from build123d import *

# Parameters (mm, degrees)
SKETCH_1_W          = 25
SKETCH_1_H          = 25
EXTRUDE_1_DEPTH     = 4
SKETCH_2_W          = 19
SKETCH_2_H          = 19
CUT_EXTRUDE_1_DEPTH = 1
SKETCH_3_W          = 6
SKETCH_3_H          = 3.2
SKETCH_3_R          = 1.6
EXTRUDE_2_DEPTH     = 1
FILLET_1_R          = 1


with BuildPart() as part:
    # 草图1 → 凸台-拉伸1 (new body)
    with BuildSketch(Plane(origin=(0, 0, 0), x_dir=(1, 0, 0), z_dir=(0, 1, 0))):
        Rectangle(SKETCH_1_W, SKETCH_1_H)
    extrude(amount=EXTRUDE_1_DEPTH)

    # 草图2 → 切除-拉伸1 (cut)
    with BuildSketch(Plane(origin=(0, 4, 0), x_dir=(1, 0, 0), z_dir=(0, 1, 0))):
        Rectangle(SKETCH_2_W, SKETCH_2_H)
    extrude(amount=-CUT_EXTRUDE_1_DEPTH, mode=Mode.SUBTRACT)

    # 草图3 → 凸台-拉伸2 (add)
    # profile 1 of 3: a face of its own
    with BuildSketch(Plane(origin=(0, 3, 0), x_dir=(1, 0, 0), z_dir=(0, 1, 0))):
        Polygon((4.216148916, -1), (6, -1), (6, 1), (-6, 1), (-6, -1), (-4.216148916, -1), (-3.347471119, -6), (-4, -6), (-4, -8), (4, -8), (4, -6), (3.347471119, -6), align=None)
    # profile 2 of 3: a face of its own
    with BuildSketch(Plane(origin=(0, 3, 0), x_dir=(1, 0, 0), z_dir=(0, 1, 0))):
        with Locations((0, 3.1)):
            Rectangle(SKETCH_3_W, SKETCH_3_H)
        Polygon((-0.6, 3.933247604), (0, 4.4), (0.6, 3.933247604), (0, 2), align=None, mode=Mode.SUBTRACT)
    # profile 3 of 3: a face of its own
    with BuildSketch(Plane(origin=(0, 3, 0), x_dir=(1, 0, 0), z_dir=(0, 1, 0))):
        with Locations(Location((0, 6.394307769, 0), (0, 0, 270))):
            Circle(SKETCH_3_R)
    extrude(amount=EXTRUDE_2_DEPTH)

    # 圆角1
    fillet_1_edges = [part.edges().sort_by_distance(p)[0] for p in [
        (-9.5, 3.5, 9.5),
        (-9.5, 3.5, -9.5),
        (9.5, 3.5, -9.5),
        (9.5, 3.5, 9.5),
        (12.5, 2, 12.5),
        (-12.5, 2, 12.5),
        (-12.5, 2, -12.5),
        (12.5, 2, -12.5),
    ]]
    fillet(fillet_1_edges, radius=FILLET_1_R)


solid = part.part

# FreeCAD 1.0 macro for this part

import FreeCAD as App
import Part
import Sketcher

V = App.Vector
Q = App.Units.Quantity


def edges_at(feature, points):
    """Names of the edges that pass closest to the given points."""
    edges = feature.Shape.Edges
    near = lambda p: min(range(len(edges)), key=lambda i: edges[i].distToShape(Part.Vertex(*p))[0])
    return sorted({f"Edge{near(p) + 1}" for p in points})


def add_polygon(sketch, points):
    """Adds a closed chain of lines whose ends are joined by coincident constraints."""
    first, n = sketch.GeometryCount, len(points)
    for a, b in zip(points, points[1:] + points[:1]):
        sketch.addGeometry(Part.LineSegment(App.Vector(*a, 0), App.Vector(*b, 0)), False)
    for i in range(n):
        sketch.addConstraint(Sketcher.Constraint("Coincident", first + i, 2, first + (i + 1) % n, 1))

doc = App.newDocument("Part")
body = doc.addObject("PartDesign::Body", "Body")

sketch1 = body.newObject("Sketcher::SketchObject", "Sketch")
sketch1.AttachmentSupport = (doc.getObject("XZ_Plane"), [""])
sketch1.MapMode = "FlatFace"
add_polygon(sketch1, [(-12, -12), (-12, 12), (12, 12), (12, -12)])
sketch1.addConstraint(Sketcher.Constraint("Vertical", 0))
sketch1.addConstraint(Sketcher.Constraint("Horizontal", 1))
sketch1.addConstraint(Sketcher.Constraint("Vertical", 2))
sketch1.addConstraint(Sketcher.Constraint("Horizontal", 3))
sketch1.addConstraint(Sketcher.Constraint("Symmetric", 0, 2, 2, 2, -1, 1))
sketch1.addConstraint(Sketcher.Constraint("Equal", 3, 0))
sketch1.addConstraint(Sketcher.Constraint("DistanceX", 1, 1, 1, 2, Q("25 mm")))
pad1 = body.newObject("PartDesign::Pad", "Pad")
pad1.Profile = sketch1
pad1.Length = 4
pad1.Reversed = True

sketch2 = body.newObject("Sketcher::SketchObject", "Sketch001")
sketch2.AttachmentSupport = (doc.getObject("XZ_Plane"), [""])
sketch2.MapMode = "FlatFace"
sketch2.AttachmentOffset = App.Placement(V(0, 0, -4), App.Rotation())
add_polygon(sketch2, [(-10, -10), (-10, 10), (10, 10), (10, -10)])
sketch2.addConstraint(Sketcher.Constraint("Vertical", 0))
sketch2.addConstraint(Sketcher.Constraint("Horizontal", 1))
sketch2.addConstraint(Sketcher.Constraint("Vertical", 2))
sketch2.addConstraint(Sketcher.Constraint("Horizontal", 3))
sketch2.addConstraint(Sketcher.Constraint("Symmetric", 0, 2, 2, 2, -1, 1))
sketch2.addConstraint(Sketcher.Constraint("Equal", 3, 0))
sketch2.addConstraint(Sketcher.Constraint("DistanceX", 1, 1, 1, 2, Q("19 mm")))
pocket1 = body.newObject("PartDesign::Pocket", "Pocket")
pocket1.Profile = sketch2
pocket1.Length = 1
pocket1.Reversed = True

sketch3 = body.newObject("Sketcher::SketchObject", "Sketch002")
sketch3.AttachmentSupport = (doc.getObject("XZ_Plane"), [""])
sketch3.MapMode = "FlatFace"
sketch3.AttachmentOffset = App.Placement(V(0, 0, -3), App.Rotation())
add_polygon(sketch3, [(4.2, 1), (6, 1), (6, -1), (-6, -1), (-6, 1), (-4.2, 1), (-3.3, 6), (-4, 6), (-4, 8), (4, 8), (4, 6), (3.3, 6)])
add_polygon(sketch3, [(-3, -4.7), (-3, -1.5), (3, -1.5), (3, -4.7)])
add_polygon(sketch3, [(0, -2), (-0.6, -3.9), (0, -4.4), (0.6, -3.9)])
sketch3.addGeometry(Part.Circle(V(0, -6.4, 0), V(0, 0, 1), 1.6), False)
sketch3.addConstraint(Sketcher.Constraint("Horizontal", 0))
sketch3.addConstraint(Sketcher.Constraint("Vertical", 1))
sketch3.addConstraint(Sketcher.Constraint("Horizontal", 2))
sketch3.addConstraint(Sketcher.Constraint("Vertical", 3))
sketch3.addConstraint(Sketcher.Constraint("Horizontal", 4))
sketch3.addConstraint(Sketcher.Constraint("Horizontal", 6))
sketch3.addConstraint(Sketcher.Constraint("Vertical", 7))
sketch3.addConstraint(Sketcher.Constraint("Horizontal", 8))
sketch3.addConstraint(Sketcher.Constraint("Vertical", 9))
sketch3.addConstraint(Sketcher.Constraint("Horizontal", 10))
sketch3.addConstraint(Sketcher.Constraint("Vertical", 12))
sketch3.addConstraint(Sketcher.Constraint("Horizontal", 13))
sketch3.addConstraint(Sketcher.Constraint("Vertical", 14))
sketch3.addConstraint(Sketcher.Constraint("Horizontal", 15))
sketch3.addConstraint(Sketcher.Constraint("Symmetric", 0, 2, 2, 2, -1, 1))
sketch3.addConstraint(Sketcher.Constraint("Symmetric", 6, 2, 9, 2, -2))
sketch3.addConstraint(Sketcher.Constraint("Symmetric", 4, 2, 11, 2, -2))
sketch3.addConstraint(Sketcher.Constraint("Symmetric", 16, 2, 18, 2, -2))
sketch3.addConstraint(Sketcher.Constraint("PointOnObject", 20, 3, -2))
sketch3.addConstraint(Sketcher.Constraint("PointOnObject", 17, 2, -2))
sketch3.addConstraint(Sketcher.Constraint("PointOnObject", 19, 2, -2))
sketch3.addConstraint(Sketcher.Constraint("Equal", 6, 10))
sketch3.addConstraint(Sketcher.Constraint("Equal", 3, 7))
sketch3.addConstraint(Sketcher.Constraint("Diameter", 20, Q("3.2 mm")))
sketch3.addConstraint(Sketcher.Constraint("DistanceX", 2, 2, 2, 1, Q("12 mm")))
sketch3.addConstraint(Sketcher.Constraint("DistanceX", 8, 1, 8, 2, Q("8 mm")))
sketch3.addConstraint(Sketcher.Constraint("DistanceX", 13, 1, 13, 2, Q("6 mm")))
sketch3.addConstraint(Sketcher.Constraint("DistanceY", 1, 2, 1, 1, Q("2 mm")))
sketch3.addConstraint(Sketcher.Constraint("DistanceY", 12, 1, 12, 2, Q("3.2 mm")))
sketch3.addConstraint(Sketcher.Constraint("DistanceY", -1, 1, 5, 2, Q("6 mm")))
sketch3.addConstraint(Sketcher.Constraint("DistanceX", 12, 2, -1, 1, Q("3 mm")))
sketch3.addConstraint(Sketcher.Constraint("DistanceY", 19, 2, -1, 1, Q("2 mm")))
sketch3.addConstraint(Sketcher.Constraint("DistanceY", 12, 2, -1, 1, Q("1.5 mm")))
sketch3.addConstraint(Sketcher.Constraint("DistanceX", 16, 2, -1, 1, Q("0.6 mm")))
sketch3.addConstraint(Sketcher.Constraint("DistanceY", 17, 2, -1, 1, Q("4.4 mm")))
sketch3.addConstraint(Sketcher.Constraint("Distance", 5, Q("5.074899 mm")))
sketch3.addConstraint(Sketcher.Constraint("DistanceX", 0, 1, 0, 2, Q("1.783851 mm")))
sketch3.addConstraint(Sketcher.Constraint("Distance", 17, Q("0.76017 mm")))
sketch3.addConstraint(Sketcher.Constraint("DistanceY", 20, 3, 16, 2, Q("2.46106 mm")))
pad2 = body.newObject("PartDesign::Pad", "Pad001")
pad2.Profile = sketch3
pad2.Length = 1
pad2.Reversed = True
doc.recompute()

fillet = body.newObject("PartDesign::Fillet", "Fillet")
fillet.Base = (pad2, edges_at(pad2, [
    (-9.5, 3.5, 9.5),
    (-9.5, 3.5, -9.5),
    (9.5, 3.5, -9.5),
    (9.5, 3.5, 9.5),
    (12.5, 2, 12.5),
    (-12.5, 2, 12.5),
    (-12.5, 2, -12.5),
    (12.5, 2, -12.5),
]))
fillet.Radius = 1

doc.recompute()
